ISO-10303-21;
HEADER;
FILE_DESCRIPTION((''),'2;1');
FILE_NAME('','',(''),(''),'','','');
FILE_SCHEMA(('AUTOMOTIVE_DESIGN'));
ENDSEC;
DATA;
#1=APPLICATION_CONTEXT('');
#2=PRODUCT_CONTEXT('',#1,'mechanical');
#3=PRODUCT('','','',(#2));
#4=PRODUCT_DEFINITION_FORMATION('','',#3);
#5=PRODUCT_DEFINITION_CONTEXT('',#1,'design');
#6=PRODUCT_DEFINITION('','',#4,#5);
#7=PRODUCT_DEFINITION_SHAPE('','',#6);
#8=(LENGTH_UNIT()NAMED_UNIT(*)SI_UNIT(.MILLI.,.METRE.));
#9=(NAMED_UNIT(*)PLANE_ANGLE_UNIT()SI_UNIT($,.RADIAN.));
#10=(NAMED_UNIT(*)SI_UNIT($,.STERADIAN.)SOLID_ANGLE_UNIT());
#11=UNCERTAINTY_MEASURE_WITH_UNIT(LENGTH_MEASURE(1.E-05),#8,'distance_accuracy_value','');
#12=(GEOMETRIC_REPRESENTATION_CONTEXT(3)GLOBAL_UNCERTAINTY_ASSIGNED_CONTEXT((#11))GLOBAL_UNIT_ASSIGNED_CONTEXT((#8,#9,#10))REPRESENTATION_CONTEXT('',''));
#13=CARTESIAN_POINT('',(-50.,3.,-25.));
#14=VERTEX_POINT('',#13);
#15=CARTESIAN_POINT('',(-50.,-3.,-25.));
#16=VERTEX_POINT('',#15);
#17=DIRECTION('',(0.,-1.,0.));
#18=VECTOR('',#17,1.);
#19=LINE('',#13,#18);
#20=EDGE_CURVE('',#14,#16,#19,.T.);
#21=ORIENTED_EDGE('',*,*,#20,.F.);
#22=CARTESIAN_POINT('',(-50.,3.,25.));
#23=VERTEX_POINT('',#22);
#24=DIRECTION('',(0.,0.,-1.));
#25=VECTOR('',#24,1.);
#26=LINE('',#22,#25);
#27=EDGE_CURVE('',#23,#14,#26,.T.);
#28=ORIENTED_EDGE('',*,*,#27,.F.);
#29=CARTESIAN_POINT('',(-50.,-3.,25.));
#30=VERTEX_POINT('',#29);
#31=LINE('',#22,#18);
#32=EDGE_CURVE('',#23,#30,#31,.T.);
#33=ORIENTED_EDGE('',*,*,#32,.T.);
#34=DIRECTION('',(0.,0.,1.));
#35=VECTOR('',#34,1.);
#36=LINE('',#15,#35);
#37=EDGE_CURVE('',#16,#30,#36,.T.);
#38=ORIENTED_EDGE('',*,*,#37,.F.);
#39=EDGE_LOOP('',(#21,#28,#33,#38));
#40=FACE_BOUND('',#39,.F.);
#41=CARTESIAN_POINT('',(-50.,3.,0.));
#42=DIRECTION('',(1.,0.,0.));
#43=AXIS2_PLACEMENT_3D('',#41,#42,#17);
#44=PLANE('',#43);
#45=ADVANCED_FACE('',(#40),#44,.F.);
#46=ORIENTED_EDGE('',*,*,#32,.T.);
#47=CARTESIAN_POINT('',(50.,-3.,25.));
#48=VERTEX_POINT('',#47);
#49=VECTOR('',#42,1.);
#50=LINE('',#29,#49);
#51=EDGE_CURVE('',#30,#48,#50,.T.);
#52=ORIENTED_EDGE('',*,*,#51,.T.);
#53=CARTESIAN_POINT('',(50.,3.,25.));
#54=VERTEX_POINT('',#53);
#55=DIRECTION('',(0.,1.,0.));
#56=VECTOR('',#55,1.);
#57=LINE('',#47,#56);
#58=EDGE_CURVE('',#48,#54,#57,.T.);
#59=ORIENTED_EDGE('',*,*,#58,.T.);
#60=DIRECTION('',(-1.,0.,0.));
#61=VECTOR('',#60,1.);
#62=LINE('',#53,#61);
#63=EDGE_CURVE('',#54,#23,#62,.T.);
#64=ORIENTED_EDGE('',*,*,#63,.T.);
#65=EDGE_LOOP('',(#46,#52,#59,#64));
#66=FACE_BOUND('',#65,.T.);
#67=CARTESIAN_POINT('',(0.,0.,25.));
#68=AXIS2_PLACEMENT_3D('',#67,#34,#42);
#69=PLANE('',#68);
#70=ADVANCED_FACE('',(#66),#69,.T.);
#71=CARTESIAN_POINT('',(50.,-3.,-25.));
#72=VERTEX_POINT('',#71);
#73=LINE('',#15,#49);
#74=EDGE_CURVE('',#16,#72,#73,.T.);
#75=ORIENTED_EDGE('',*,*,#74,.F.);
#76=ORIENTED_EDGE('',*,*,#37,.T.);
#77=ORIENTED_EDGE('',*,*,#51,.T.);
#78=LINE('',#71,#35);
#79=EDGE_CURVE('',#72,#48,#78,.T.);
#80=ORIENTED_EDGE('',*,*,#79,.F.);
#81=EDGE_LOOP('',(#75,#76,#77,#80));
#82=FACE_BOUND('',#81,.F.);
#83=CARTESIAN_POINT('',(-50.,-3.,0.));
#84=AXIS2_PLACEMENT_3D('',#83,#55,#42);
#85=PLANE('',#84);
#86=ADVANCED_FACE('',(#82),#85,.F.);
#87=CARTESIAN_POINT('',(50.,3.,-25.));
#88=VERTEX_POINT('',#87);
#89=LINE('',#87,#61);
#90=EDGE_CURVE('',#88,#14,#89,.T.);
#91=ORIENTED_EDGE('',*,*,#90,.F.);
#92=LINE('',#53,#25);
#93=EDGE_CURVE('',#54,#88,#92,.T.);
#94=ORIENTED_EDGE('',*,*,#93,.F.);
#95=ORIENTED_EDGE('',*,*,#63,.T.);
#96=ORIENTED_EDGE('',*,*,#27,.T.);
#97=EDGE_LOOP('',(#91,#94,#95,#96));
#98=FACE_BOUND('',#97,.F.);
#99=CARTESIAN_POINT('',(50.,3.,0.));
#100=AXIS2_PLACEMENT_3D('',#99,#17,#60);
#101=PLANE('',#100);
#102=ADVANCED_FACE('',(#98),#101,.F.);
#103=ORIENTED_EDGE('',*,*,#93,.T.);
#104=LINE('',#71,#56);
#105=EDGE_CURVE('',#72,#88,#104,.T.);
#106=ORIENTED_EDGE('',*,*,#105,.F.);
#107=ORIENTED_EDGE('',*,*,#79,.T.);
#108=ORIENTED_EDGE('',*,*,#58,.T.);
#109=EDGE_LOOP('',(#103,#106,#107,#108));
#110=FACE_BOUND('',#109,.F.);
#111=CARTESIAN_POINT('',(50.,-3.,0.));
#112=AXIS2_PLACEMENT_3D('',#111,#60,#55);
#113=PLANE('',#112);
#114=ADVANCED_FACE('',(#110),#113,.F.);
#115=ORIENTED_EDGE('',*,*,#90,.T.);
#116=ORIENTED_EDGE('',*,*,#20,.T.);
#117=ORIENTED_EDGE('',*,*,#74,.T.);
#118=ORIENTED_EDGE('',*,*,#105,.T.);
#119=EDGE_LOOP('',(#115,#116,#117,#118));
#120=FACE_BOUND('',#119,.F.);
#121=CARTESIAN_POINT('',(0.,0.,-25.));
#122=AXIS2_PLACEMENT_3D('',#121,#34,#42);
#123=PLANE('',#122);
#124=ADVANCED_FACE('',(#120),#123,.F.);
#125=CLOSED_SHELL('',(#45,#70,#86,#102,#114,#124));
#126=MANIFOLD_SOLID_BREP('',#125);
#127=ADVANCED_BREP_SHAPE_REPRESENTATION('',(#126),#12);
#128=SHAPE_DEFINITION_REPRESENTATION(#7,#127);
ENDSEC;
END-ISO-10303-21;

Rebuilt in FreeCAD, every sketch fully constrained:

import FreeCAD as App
import Part
import Sketcher
from FreeCAD import Vector

doc = App.newDocument("Part")
params = doc.addObject("Spreadsheet::Sheet", "Params")
for row, (alias, value) in enumerate([
    ("sketch1_width", "100 mm"),
    ("sketch1_height", "6 mm"),
    ("pad1_length", "50 mm"),
], start=1):
    params.set(f"A{row}", alias)
    params.set(f"B{row}", "=" + value)
    params.setAlias(f"B{row}", alias)

body = doc.addObject("PartDesign::Body", "Body")

# Sketch on XY plane
sketch1 = body.newObject("Sketcher::SketchObject", "Sketch")
sketch1.AttachmentSupport = (doc.getObject("XY_Plane"), [""])
sketch1.MapMode = "FlatFace"
sketch1.addGeometry(Part.LineSegment(Vector(-50, 3, 0), Vector(-50, -3, 0)), False)
sketch1.addGeometry(Part.LineSegment(Vector(-50, -3, 0), Vector(50, -3, 0)), False)
sketch1.addGeometry(Part.LineSegment(Vector(50, -3, 0), Vector(50, 3, 0)), False)
sketch1.addGeometry(Part.LineSegment(Vector(50, 3, 0), Vector(-50, 3, 0)), False)
sketch1.addConstraint(Sketcher.Constraint("Coincident", 0, 2, 1, 1))
sketch1.addConstraint(Sketcher.Constraint("Coincident", 1, 2, 2, 1))
sketch1.addConstraint(Sketcher.Constraint("Coincident", 2, 2, 3, 1))
sketch1.addConstraint(Sketcher.Constraint("Coincident", 3, 2, 0, 1))
sketch1.addConstraint(Sketcher.Constraint("Vertical", 0))
sketch1.addConstraint(Sketcher.Constraint("Horizontal", 1))
sketch1.addConstraint(Sketcher.Constraint("Vertical", 2))
sketch1.addConstraint(Sketcher.Constraint("Horizontal", 3))
sketch1.addConstraint(Sketcher.Constraint("Symmetric", 0, 2, 2, 2, -1, 1))
sketch1.addConstraint(Sketcher.Constraint("DistanceX", 1, 1, 1, 2, 100.0))
sketch1.addConstraint(Sketcher.Constraint("DistanceY", 0, 2, 0, 1, 6.0))
sketch1.setExpression("Constraints[9]", "Params.sketch1_width")
sketch1.setExpression("Constraints[10]", "Params.sketch1_height")
pad1 = body.newObject("PartDesign::Pad", "Pad")
pad1.Profile = sketch1
pad1.setExpression("Length", "Params.pad1_length")
pad1.Midplane = True

doc.recompute()
